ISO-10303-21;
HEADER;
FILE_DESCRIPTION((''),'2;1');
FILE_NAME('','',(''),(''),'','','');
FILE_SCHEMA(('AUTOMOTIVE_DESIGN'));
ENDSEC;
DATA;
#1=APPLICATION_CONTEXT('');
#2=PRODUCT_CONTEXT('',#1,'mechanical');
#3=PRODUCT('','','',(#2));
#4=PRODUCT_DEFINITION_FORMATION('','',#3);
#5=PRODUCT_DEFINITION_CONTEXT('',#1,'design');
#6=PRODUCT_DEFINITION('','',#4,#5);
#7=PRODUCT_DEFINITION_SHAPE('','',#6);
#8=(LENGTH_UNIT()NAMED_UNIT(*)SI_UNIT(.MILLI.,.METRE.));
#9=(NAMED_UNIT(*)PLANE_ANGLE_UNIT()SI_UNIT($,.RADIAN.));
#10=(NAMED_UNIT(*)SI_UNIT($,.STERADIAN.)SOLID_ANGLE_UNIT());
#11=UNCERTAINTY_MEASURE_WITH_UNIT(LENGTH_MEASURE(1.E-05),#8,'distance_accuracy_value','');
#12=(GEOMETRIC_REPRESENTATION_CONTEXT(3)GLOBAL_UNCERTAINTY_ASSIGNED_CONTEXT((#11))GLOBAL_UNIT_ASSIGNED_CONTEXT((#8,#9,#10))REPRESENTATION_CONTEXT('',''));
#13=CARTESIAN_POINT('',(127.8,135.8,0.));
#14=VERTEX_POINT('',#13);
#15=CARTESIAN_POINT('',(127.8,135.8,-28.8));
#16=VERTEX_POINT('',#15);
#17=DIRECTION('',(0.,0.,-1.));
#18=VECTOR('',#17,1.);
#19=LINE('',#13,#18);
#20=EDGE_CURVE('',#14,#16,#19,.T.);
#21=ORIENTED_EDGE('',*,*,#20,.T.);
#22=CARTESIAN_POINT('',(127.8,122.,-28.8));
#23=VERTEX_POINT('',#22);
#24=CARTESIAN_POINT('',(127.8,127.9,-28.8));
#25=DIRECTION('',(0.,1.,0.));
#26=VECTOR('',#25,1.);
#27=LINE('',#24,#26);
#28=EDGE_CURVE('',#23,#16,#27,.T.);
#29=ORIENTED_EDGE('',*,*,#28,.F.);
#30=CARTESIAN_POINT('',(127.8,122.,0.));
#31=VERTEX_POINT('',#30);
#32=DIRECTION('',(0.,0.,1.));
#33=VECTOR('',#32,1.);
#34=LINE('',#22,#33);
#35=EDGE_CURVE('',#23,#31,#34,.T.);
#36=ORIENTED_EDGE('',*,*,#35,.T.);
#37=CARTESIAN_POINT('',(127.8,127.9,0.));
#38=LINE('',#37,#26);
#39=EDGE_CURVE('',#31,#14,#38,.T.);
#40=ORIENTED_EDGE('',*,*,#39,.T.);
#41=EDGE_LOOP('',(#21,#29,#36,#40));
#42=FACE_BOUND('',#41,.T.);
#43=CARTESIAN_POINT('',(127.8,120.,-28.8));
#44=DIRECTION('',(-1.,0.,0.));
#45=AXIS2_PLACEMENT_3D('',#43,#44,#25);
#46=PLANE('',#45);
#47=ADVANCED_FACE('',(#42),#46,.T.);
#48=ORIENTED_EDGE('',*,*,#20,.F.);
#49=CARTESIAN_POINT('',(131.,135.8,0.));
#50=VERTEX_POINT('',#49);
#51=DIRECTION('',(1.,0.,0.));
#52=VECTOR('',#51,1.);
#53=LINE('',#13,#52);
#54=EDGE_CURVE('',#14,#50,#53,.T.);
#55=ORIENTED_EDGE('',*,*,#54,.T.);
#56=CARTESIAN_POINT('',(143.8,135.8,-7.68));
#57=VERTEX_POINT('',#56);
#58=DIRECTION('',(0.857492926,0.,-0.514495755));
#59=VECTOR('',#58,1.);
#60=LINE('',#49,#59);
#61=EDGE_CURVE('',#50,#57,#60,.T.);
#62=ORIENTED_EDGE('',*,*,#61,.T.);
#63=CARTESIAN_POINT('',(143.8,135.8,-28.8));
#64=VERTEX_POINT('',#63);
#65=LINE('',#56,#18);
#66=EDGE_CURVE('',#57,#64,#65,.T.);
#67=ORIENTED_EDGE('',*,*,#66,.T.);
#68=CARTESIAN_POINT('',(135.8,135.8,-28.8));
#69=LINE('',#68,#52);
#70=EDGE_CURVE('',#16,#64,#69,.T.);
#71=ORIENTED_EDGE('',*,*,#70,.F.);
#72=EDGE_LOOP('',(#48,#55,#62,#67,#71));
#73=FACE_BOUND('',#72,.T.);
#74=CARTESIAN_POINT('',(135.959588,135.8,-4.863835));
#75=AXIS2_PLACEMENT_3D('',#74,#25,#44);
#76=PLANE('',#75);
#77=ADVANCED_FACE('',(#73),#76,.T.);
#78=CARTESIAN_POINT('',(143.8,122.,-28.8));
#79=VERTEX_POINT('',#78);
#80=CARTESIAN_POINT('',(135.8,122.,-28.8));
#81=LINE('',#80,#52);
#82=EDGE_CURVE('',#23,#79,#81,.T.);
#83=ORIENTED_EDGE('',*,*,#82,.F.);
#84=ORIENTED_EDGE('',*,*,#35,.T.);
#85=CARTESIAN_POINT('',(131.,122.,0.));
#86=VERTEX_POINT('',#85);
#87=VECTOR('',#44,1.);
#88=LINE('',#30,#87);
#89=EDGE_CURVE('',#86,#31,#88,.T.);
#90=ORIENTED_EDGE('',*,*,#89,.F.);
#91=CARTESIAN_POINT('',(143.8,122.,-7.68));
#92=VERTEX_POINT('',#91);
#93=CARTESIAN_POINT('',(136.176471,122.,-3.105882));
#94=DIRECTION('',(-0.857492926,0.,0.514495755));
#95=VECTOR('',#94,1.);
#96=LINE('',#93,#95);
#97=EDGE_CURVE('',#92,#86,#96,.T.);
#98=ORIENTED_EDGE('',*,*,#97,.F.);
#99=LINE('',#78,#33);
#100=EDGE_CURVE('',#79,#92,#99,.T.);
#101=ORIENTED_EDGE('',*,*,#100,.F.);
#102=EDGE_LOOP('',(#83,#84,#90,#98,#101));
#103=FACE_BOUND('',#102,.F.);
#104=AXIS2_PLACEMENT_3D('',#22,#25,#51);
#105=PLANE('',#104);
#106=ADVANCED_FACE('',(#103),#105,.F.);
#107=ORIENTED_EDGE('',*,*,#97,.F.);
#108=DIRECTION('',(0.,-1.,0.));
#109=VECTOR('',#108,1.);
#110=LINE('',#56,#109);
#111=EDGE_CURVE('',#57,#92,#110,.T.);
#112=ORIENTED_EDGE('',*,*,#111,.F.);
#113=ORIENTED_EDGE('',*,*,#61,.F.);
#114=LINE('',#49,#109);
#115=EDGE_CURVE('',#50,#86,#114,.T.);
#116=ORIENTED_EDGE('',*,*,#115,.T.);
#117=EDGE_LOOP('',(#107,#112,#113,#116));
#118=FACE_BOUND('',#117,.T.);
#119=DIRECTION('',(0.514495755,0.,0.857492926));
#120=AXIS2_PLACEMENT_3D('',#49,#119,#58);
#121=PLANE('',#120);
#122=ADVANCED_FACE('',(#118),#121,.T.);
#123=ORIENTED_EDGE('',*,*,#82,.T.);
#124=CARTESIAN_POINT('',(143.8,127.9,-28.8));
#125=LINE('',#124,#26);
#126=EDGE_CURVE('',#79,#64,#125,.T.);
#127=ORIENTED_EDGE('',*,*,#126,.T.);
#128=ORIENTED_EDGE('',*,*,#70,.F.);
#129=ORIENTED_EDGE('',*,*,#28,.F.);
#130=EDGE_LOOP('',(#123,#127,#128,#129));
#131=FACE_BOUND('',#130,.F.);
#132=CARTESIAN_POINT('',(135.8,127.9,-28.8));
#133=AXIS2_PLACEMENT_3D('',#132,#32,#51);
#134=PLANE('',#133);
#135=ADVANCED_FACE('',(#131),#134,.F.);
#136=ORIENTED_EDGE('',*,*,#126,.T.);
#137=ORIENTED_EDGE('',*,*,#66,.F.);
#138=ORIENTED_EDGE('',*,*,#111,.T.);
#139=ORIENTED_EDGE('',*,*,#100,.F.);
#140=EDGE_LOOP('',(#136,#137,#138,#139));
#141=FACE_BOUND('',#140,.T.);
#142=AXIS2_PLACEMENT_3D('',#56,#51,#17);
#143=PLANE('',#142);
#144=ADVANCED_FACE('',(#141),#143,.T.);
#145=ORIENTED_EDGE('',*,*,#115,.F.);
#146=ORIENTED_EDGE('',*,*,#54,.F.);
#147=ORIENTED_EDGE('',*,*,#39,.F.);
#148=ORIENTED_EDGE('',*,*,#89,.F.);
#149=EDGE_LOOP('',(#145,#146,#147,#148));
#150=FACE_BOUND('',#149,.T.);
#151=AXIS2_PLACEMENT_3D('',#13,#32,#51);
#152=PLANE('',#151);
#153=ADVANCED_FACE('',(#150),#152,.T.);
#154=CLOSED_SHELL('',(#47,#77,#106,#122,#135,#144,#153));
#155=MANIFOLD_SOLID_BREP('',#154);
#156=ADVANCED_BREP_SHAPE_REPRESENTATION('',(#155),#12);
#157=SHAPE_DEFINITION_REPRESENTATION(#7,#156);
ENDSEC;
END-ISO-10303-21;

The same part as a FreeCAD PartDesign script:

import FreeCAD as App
import Part
import Sketcher

V = App.Vector
Q = App.Units.Quantity


def add_polygon(sketch, points):
    """Adds a closed chain of lines whose ends are joined by coincident constraints."""
    first, n = sketch.GeometryCount, len(points)
    for a, b in zip(points, points[1:] + points[:1]):
        sketch.addGeometry(Part.LineSegment(App.Vector(*a, 0), App.Vector(*b, 0)), False)
    for i in range(n):
        sketch.addConstraint(Sketcher.Constraint("Coincident", first + i, 2, first + (i + 1) % n, 1))

doc = App.newDocument("Part")
body = doc.addObject("PartDesign::Body", "Body")

# Sketch on XY plane
sketch1 = body.newObject("Sketcher::SketchObject", "Sketch")
sketch1.AttachmentSupport = (doc.getObject("XY_Plane"), [""])
sketch1.MapMode = "FlatFace"
sketch1.AttachmentOffset = App.Placement(V(0, 0, -28.8), App.Rotation())
add_polygon(sketch1, [(127.8, 135.8), (127.8, 120), (143.8, 120), (143.8, 135.8)])  # lines 0-3
sketch1.addConstraint([
    Sketcher.Constraint("Vertical", 0),
    Sketcher.Constraint("Horizontal", 1),
    Sketcher.Constraint("Vertical", 2),
    Sketcher.Constraint("Horizontal", 3),
    Sketcher.Constraint("DistanceX", 1, 1, 1, 2, Q("16 mm")),
    Sketcher.Constraint("DistanceY", 0, 2, 0, 1, Q("15.8 mm")),
    Sketcher.Constraint("DistanceY", -1, 1, 0, 2, Q("120 mm")),
    Sketcher.Constraint("DistanceX", -1, 1, 0, 2, Q("127.8 mm")),
])
pad1 = body.newObject("PartDesign::Pad", "Pad")
pad1.Profile = sketch1
pad1.Length = 28.8

# Sketch on XZ plane
sketch2 = body.newObject("Sketcher::SketchObject", "Sketch001")
sketch2.AttachmentSupport = (doc.getObject("XZ_Plane"), [""])
sketch2.MapMode = "FlatFace"
sketch2.AttachmentOffset = App.Placement(V(0, 0, -120), App.Rotation())
add_polygon(sketch2, [(127.8, 0), (143.8, -9.6), (143.8, 0)])  # lines 0-2
sketch2.addConstraint([
    Sketcher.Constraint("Vertical", 1),
    Sketcher.Constraint("Horizontal", 2),
    Sketcher.Constraint("PointOnObject", 1, 2, -1),
    Sketcher.Constraint("DistanceX", 2, 2, 2, 1, Q("16 mm")),
    Sketcher.Constraint("DistanceY", 1, 1, 1, 2, Q("9.6 mm")),
    Sketcher.Constraint("DistanceX", -1, 1, 0, 2, Q("143.8 mm")),
])
pocket1 = body.newObject("PartDesign::Pocket", "Pocket")
pocket1.Profile = sketch2
pocket1.Length = 16

# Sketch on XZ plane
sketch3 = body.newObject("Sketcher::SketchObject", "Sketch002")
sketch3.AttachmentSupport = (doc.getObject("XZ_Plane"), [""])
sketch3.MapMode = "FlatFace"
sketch3.AttachmentOffset = App.Placement(V(0, 0, -135.8), App.Rotation())
add_polygon(sketch3, [(127.8, 0), (131, 0), (143.8, -7.68), (143.8, -10.88), (131, -3.2), (127.8, -3.2)])  # lines 0-5
sketch3.addConstraint([
    Sketcher.Constraint("Horizontal", 0),
    Sketcher.Constraint("Vertical", 2),
    Sketcher.Constraint("Horizontal", 4),
    Sketcher.Constraint("Vertical", 5),
    Sketcher.Constraint("PointOnObject", 0, 2, -1),
    Sketcher.Constraint("Parallel", 1, 3),
    Sketcher.Constraint("Vertical", 0, 2, 3, 2),
    Sketcher.Constraint("Equal", 4, 2),
    Sketcher.Constraint("DistanceX", 0, 1, 0, 2, Q("3.2 mm")),
    Sketcher.Constraint("DistanceX", -1, 1, 0, 2, Q("131 mm")),
    Sketcher.Constraint("DistanceX", 4, 2, 1, 2, Q("16 mm")),
    Sketcher.Constraint("DistanceY", 1, 2, -1, 1, Q("7.68 mm")),
])
pad2 = body.newObject("PartDesign::Pad", "Pad001")
pad2.Profile = sketch3
pad2.Length = 15.8

# Sketch on XY plane
sketch4 = body.newObject("Sketcher::SketchObject", "Sketch003")
sketch4.AttachmentSupport = (doc.getObject("XY_Plane"), [""])
sketch4.MapMode = "FlatFace"
sketch4.AttachmentOffset = App.Placement(V(0, 0, -28.8), App.Rotation())
add_polygon(sketch4, [(127.8, 120), (127.8, 122), (143.8, 122), (143.8, 120)])  # lines 0-3
sketch4.addConstraint([
    Sketcher.Constraint("Vertical", 0),
    Sketcher.Constraint("Horizontal", 1),
    Sketcher.Constraint("Vertical", 2),
    Sketcher.Constraint("Horizontal", 3),
    Sketcher.Constraint("DistanceX", 1, 1, 1, 2, Q("16 mm")),
    Sketcher.Constraint("DistanceY", 0, 1, 0, 2, Q("2 mm")),
    Sketcher.Constraint("DistanceY", -1, 1, 0, 2, Q("122 mm")),
    Sketcher.Constraint("DistanceX", -1, 1, 0, 2, Q("127.8 mm")),
])
pocket2 = body.newObject("PartDesign::Pocket", "Pocket001")
pocket2.Profile = sketch4
pocket2.Length = 30
pocket2.Reversed = True

doc.recompute()
